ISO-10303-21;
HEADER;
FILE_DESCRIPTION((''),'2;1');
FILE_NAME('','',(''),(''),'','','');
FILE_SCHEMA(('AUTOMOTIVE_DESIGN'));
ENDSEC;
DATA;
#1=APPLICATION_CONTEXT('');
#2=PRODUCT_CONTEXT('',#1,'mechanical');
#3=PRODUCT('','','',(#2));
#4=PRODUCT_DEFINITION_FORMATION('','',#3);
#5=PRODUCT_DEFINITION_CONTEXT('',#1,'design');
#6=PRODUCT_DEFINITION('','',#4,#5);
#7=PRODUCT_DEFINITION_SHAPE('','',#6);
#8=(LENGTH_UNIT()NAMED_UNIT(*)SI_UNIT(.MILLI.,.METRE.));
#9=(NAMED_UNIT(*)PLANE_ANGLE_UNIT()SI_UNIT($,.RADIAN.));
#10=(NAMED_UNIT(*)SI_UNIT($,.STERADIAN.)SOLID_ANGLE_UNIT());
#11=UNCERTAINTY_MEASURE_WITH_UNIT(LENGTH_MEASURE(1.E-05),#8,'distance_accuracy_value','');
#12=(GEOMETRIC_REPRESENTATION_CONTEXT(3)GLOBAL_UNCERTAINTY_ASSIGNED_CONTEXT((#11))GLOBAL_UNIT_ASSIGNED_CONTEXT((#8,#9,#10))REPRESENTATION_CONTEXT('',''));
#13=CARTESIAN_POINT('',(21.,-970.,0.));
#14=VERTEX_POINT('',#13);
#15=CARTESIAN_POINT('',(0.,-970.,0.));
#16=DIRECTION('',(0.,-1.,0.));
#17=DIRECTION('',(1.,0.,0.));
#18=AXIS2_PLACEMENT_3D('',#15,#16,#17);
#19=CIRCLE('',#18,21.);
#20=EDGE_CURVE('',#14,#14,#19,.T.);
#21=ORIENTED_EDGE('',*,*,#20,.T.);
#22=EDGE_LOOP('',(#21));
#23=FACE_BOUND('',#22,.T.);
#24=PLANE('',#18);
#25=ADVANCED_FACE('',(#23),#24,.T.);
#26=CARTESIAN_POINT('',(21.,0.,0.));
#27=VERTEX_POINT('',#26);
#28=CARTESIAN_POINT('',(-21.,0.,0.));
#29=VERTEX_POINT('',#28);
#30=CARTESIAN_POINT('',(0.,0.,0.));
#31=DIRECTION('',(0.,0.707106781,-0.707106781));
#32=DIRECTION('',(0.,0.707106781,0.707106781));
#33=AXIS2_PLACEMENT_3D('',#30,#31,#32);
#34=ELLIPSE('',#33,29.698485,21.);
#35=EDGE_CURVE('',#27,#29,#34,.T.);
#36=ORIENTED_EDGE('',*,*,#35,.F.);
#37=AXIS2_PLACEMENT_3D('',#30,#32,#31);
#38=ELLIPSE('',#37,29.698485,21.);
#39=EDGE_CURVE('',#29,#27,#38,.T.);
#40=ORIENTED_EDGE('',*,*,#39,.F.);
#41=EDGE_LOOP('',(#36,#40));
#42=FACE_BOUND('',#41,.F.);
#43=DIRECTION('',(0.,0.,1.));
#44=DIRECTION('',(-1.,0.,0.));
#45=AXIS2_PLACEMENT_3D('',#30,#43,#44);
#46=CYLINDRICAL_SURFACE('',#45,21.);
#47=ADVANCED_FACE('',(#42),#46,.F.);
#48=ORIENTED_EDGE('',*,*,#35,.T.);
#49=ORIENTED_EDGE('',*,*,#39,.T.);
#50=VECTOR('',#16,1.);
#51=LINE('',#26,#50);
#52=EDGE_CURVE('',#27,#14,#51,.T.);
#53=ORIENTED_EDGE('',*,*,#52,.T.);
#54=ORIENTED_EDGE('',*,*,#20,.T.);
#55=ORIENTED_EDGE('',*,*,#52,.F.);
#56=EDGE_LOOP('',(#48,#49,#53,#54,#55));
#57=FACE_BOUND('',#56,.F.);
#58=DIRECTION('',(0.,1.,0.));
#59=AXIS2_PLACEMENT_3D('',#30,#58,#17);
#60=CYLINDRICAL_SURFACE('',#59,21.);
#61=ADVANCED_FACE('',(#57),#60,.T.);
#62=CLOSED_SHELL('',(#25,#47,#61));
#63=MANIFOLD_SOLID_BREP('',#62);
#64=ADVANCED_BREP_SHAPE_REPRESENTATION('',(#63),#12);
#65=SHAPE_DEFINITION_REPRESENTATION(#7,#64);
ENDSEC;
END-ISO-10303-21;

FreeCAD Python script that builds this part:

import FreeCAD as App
import Part
import Sketcher

V = App.Vector

doc = App.newDocument("Part")
body = doc.addObject("PartDesign::Body", "Body")

# Sketch on XZ plane
sketch1 = doc.addObject("Sketcher::SketchObject", "Sketch")
body.addObject(sketch1)
sketch1.AttachmentSupport = (doc.XZ_Plane, [""])
sketch1.MapMode = "FlatFace"
sketch1.addGeometry(Part.Circle(V(0, 0, 0), V(0, 0, 1), 21), False)
sketch1.addConstraint(Sketcher.Constraint("Coincident", 0, 3, -1, 1))
sketch1.addConstraint(Sketcher.Constraint("Diameter", 0, 42.0))
pad1 = doc.addObject("PartDesign::Pad", "Pad")
body.addObject(pad1)
pad1.Profile = sketch1
pad1.Length = 970

# Sketch on XY plane
sketch2 = doc.addObject("Sketcher::SketchObject", "Sketch001")
body.addObject(sketch2)
sketch2.AttachmentSupport = (doc.XY_Plane, [""])
sketch2.MapMode = "FlatFace"
sketch2.addGeometry(Part.Circle(V(0, 0, 0), V(0, 0, 1), 21), False)
sketch2.addConstraint(Sketcher.Constraint("Coincident", 0, 3, -1, 1))
sketch2.addConstraint(Sketcher.Constraint("Diameter", 0, 42.0))
pocket1 = doc.addObject("PartDesign::Pocket", "Pocket")
body.addObject(pocket1)
pocket1.Profile = sketch2
pocket1.Length = 1000
pocket1.Midplane = True

doc.recompute()
